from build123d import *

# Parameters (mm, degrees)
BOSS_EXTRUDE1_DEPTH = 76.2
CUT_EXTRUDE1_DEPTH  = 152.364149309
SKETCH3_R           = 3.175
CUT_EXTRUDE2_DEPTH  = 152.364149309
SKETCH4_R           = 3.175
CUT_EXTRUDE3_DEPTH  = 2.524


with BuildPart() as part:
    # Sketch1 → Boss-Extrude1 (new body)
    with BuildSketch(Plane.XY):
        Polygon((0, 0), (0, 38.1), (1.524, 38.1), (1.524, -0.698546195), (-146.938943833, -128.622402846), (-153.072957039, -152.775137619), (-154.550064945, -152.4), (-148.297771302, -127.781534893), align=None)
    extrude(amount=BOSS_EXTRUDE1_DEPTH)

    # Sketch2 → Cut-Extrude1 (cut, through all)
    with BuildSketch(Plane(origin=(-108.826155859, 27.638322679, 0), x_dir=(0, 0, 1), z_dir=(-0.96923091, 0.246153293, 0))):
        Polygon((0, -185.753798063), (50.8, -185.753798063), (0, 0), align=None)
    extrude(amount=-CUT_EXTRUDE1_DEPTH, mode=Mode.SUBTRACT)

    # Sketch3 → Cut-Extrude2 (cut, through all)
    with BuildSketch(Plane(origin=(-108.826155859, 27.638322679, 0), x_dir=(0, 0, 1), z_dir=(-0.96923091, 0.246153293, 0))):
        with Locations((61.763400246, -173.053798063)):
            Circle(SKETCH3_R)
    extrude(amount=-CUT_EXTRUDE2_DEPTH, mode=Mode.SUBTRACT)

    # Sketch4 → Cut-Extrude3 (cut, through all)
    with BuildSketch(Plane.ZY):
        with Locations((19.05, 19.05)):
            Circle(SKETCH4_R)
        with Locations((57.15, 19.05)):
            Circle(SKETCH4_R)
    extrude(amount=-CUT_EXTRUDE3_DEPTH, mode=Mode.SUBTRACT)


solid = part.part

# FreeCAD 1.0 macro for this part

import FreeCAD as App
import Part
import Sketcher
from FreeCAD import Vector
Q = App.Units.Quantity

doc = App.newDocument("Part")
body = doc.addObject("PartDesign::Body", "Body")

sketch1 = doc.addObject("Sketcher::SketchObject", "Sketch")
body.addObject(sketch1)
sketch1.AttachmentSupport = (doc.XY_Plane, [""])
sketch1.MapMode = "FlatFace"
sketch1.addGeometry([
    Part.LineSegment(Vector(0, 38.1, 0), Vector(0, 0, 0)),
    Part.LineSegment(Vector(0, 0, 0), Vector(-148.3, -127.8, 0)),
    Part.LineSegment(Vector(-148.3, -127.8, 0), Vector(-154.6, -152.4, 0)),
    Part.LineSegment(Vector(-154.6, -152.4, 0), Vector(-153.1, -152.8, 0)),
    Part.LineSegment(Vector(-153.1, -152.8, 0), Vector(-146.9, -128.6, 0)),
    Part.LineSegment(Vector(-146.9, -128.6, 0), Vector(1.5, -0.7, 0)),
    Part.LineSegment(Vector(1.5, -0.7, 0), Vector(1.5, 38.1, 0)),
    Part.LineSegment(Vector(1.5, 38.1, 0), Vector(0, 38.1, 0)),
], False)
sketch1.addConstraint([
    Sketcher.Constraint("Coincident", 0, 2, 1, 1),
    Sketcher.Constraint("Coincident", 1, 2, 2, 1),
    Sketcher.Constraint("Coincident", 2, 2, 3, 1),
    Sketcher.Constraint("Coincident", 3, 2, 4, 1),
    Sketcher.Constraint("Coincident", 4, 2, 5, 1),
    Sketcher.Constraint("Coincident", 5, 2, 6, 1),
    Sketcher.Constraint("Coincident", 6, 2, 7, 1),
    Sketcher.Constraint("Coincident", 7, 2, 0, 1),
    Sketcher.Constraint("Vertical", 0),
    Sketcher.Constraint("Vertical", 6),
    Sketcher.Constraint("Horizontal", 7),
    Sketcher.Constraint("Coincident", 0, 2, -1, 1),
    Sketcher.Constraint("Perpendicular", 2, 3),
    Sketcher.Constraint("Perpendicular", 3, 4),
    Sketcher.Constraint("Parallel", 1, 5),
    Sketcher.Constraint("Distance", 2, Q("1 in")),
    Sketcher.Constraint("DistanceY", 0, 2, 0, 1, Q("1.5 in")),
    Sketcher.Constraint("DistanceY", 2, 2, -1, 1, Q("6 in")),
    Sketcher.Constraint("DistanceX", 7, 2, 7, 1, Q("0.06 in")),
    Sketcher.Constraint("Distance", 3, Q("0.06 in")),
    Sketcher.Constraint("Angle", 1, Q("-139.25 deg")),
    Sketcher.Constraint("Angle", 2, Q("-104.25 deg")),
    Sketcher.Constraint("DistanceY", 6, 1, 6, 2, 38.798546),
])
pad1 = doc.addObject("PartDesign::Pad", "Pad")
body.addObject(pad1)
pad1.Profile = sketch1
pad1.Length = Q("3 in")

sketch2 = doc.addObject("Sketcher::SketchObject", "Sketch001")
body.addObject(sketch2)
sketch2.Placement = App.Placement(Vector(-108.826156, 27.638323, 0), App.Rotation(Vector(0, 0, 1), Vector(0.246153293, 0.96923091, 0), Vector(-0.96923091, 0.246153293, 0), "ZXY"))
sketch2.addGeometry([
    Part.LineSegment(Vector(0, -186, 0), Vector(51, -186, 0)),
    Part.LineSegment(Vector(51, -186, 0), Vector(0, 0, 0)),
    Part.LineSegment(Vector(0, 0, 0), Vector(0, -186, 0)),
], False)
sketch2.addConstraint([
    Sketcher.Constraint("Coincident", 0, 2, 1, 1),
    Sketcher.Constraint("Coincident", 1, 2, 2, 1),
    Sketcher.Constraint("Coincident", 2, 2, 0, 1),
    Sketcher.Constraint("Horizontal", 0),
    Sketcher.Constraint("Vertical", 2),
    Sketcher.Constraint("Coincident", 1, 2, -1, 1),
    Sketcher.Constraint("DistanceX", 0, 1, 0, 2, Q("2 in")),
    Sketcher.Constraint("DistanceY", 2, 2, 2, 1, 185.753798),
])
pocket1 = doc.addObject("PartDesign::Pocket", "Pocket")
body.addObject(pocket1)
pocket1.Profile = sketch2
pocket1.Type = "ThroughAll"

sketch3 = doc.addObject("Sketcher::SketchObject", "Sketch002")
body.addObject(sketch3)
sketch3.Placement = App.Placement(Vector(-108.826156, 27.638323, 0), App.Rotation(Vector(0, 0, 1), Vector(0.246153293, 0.96923091, 0), Vector(-0.96923091, 0.246153293, 0), "ZXY"))
sketch3.addGeometry(Part.Circle(Vector(61.8, -173.1, 0), Vector(0, 0, 1), 3.2), False)
sketch3.addConstraint([
    Sketcher.Constraint("Diameter", 0, Q("0.25 in")),
    Sketcher.Constraint("DistanceX", -1, 1, 0, 3, 61.7634),
    Sketcher.Constraint("DistanceY", 0, 3, -1, 1, 173.053798),
])
pocket2 = doc.addObject("PartDesign::Pocket", "Pocket001")
body.addObject(pocket2)
pocket2.Profile = sketch3
pocket2.Type = "ThroughAll"

sketch4 = doc.addObject("Sketcher::SketchObject", "Sketch003")
body.addObject(sketch4)
sketch4.AttachmentSupport = (doc.YZ_Plane, [""])
sketch4.MapMode = "FlatFace"
sketch4.addGeometry([
    Part.Circle(Vector(19.1, 19.1, 0), Vector(0, 0, 1), 3.2),
    Part.Circle(Vector(19.1, 57.1, 0), Vector(0, 0, 1), 3.2),
], False)
sketch4.addConstraint([
    Sketcher.Constraint("Equal", 0, 1),
    Sketcher.Constraint("Vertical", 0, 3, 1, 3),
    Sketcher.Constraint("Diameter", 0, Q("0.25 in")),
    Sketcher.Constraint("DistanceY", 0, 3, 1, 3, Q("1.5 in")),
    Sketcher.Constraint("DistanceX", -1, 1, 0, 3, Q("0.75 in")),
    Sketcher.Constraint("DistanceY", -1, 1, 0, 3, Q("0.75 in")),
])
pocket3 = doc.addObject("PartDesign::Pocket", "Pocket002")
body.addObject(pocket3)
pocket3.Profile = sketch4
pocket3.Type = "ThroughAll"
pocket3.Reversed = True

doc.recompute()
